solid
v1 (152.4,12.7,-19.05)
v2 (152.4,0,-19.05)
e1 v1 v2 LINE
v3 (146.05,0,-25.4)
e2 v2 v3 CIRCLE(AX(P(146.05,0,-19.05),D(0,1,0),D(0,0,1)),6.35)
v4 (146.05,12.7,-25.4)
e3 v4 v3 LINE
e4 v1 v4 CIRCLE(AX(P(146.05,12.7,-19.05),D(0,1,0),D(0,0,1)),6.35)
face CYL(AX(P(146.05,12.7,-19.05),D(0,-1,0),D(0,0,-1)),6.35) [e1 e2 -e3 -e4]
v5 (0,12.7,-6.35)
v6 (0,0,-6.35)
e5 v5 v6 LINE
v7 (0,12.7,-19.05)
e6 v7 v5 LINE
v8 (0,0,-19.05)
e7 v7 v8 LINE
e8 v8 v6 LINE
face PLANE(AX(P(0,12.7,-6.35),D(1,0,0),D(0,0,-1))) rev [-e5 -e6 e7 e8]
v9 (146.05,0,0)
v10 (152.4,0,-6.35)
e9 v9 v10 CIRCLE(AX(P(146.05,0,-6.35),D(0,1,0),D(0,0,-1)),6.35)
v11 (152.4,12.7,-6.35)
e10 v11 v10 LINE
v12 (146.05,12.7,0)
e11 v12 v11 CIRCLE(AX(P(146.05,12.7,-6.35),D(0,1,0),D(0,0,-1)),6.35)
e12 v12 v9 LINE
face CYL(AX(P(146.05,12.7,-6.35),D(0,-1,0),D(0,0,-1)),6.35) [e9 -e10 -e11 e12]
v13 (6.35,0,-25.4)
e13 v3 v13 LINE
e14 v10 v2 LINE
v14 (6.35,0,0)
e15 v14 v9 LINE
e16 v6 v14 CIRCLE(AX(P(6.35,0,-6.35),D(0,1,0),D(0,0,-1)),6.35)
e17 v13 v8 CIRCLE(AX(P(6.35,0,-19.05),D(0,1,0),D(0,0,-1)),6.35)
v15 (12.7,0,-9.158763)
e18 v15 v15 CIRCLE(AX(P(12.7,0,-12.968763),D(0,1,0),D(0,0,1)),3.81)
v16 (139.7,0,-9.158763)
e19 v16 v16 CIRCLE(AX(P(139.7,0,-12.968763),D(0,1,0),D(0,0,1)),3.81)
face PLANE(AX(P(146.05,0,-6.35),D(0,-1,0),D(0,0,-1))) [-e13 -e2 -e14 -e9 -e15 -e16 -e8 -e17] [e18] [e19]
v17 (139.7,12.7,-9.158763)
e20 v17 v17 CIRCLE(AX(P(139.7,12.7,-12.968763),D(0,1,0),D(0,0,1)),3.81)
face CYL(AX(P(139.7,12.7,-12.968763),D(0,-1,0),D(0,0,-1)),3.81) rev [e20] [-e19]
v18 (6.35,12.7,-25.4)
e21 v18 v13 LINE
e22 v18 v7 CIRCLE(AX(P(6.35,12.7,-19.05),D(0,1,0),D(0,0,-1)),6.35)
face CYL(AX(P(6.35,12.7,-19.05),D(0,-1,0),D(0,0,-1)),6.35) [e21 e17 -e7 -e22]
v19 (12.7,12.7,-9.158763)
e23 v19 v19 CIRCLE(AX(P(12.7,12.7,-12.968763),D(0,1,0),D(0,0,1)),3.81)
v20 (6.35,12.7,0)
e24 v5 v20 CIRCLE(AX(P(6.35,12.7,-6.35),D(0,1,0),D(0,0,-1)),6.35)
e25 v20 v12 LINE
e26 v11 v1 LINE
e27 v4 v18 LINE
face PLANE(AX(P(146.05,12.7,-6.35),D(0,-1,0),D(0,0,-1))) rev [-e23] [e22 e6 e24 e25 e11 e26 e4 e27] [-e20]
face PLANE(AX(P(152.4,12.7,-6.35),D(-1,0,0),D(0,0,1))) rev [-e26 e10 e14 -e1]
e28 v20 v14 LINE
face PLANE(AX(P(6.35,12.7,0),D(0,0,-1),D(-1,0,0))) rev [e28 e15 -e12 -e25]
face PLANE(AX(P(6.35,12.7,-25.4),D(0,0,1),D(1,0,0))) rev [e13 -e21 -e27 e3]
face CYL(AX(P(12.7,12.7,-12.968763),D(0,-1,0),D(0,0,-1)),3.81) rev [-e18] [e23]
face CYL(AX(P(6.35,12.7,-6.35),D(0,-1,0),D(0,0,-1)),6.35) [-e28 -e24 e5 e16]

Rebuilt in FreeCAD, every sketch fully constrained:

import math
import FreeCAD as App
import Part
import Sketcher
Q = App.Units.Quantity

doc = App.newDocument("Part")
body = doc.addObject("PartDesign::Body", "Body")

sketch1 = body.newObject("Sketcher::SketchObject", "Sketch")
sketch1.AttachmentSupport = (doc.getObject("XZ_Plane"), [""])
sketch1.MapMode = "FlatFace"
sketch1.addGeometry(Part.LineSegment(App.Vector(6.3, 0, 0), App.Vector(146.1, 0, 0)), False)
sketch1.addGeometry(Part.ArcOfCircle(Part.Circle(App.Vector(146.1, -6.3, 0), App.Vector(0, 0, 1), 6.3), math.radians(0), math.radians(90)), False)
sketch1.addGeometry(Part.LineSegment(App.Vector(152.4, -6.3, 0), App.Vector(152.4, -19.1, 0)), False)
sketch1.addGeometry(Part.ArcOfCircle(Part.Circle(App.Vector(146.1, -19.1, 0), App.Vector(0, 0, 1), 6.3), math.radians(-90), math.radians(0)), False)
sketch1.addGeometry(Part.LineSegment(App.Vector(146.1, -25.4, 0), App.Vector(6.3, -25.4, 0)), False)
sketch1.addGeometry(Part.ArcOfCircle(Part.Circle(App.Vector(6.3, -19.1, 0), App.Vector(0, 0, 1), 6.3), math.radians(180), math.radians(270)), False)
sketch1.addGeometry(Part.LineSegment(App.Vector(0, -19.1, 0), App.Vector(0, -6.3, 0)), False)
sketch1.addGeometry(Part.ArcOfCircle(Part.Circle(App.Vector(6.3, -6.3, 0), App.Vector(0, 0, 1), 6.3), math.radians(90), math.radians(180)), False)
sketch1.addGeometry(Part.Circle(App.Vector(12.7, -13, 0), App.Vector(0, 0, 1), 3.8), False)
sketch1.addGeometry(Part.Circle(App.Vector(139.7, -13, 0), App.Vector(0, 0, 1), 3.8), False)
sketch1.addConstraint(Sketcher.Constraint("Tangent", 0, 2, 1, 2))
sketch1.addConstraint(Sketcher.Constraint("Tangent", 1, 1, 2, 1))
sketch1.addConstraint(Sketcher.Constraint("Tangent", 2, 2, 3, 2))
sketch1.addConstraint(Sketcher.Constraint("Tangent", 3, 1, 4, 1))
sketch1.addConstraint(Sketcher.Constraint("Tangent", 4, 2, 5, 2))
sketch1.addConstraint(Sketcher.Constraint("Tangent", 5, 1, 6, 1))
sketch1.addConstraint(Sketcher.Constraint("Tangent", 6, 2, 7, 2))
sketch1.addConstraint(Sketcher.Constraint("Tangent", 7, 1, 0, 1))
sketch1.addConstraint(Sketcher.Constraint("Horizontal", 0))
sketch1.addConstraint(Sketcher.Constraint("Vertical", 2))
sketch1.addConstraint(Sketcher.Constraint("Horizontal", 4))
sketch1.addConstraint(Sketcher.Constraint("Vertical", 6))
sketch1.addConstraint(Sketcher.Constraint("Equal", 1, 3))
sketch1.addConstraint(Sketcher.Constraint("Equal", 3, 5))
sketch1.addConstraint(Sketcher.Constraint("Equal", 5, 7))
sketch1.addConstraint(Sketcher.Constraint("Equal", 8, 9))
sketch1.addConstraint(Sketcher.Constraint("PointOnObject", 0, 2, -1))
sketch1.addConstraint(Sketcher.Constraint("PointOnObject", 5, 1, -2))
sketch1.addConstraint(Sketcher.Constraint("Horizontal", 8, 3, 9, 3))
sketch1.addConstraint(Sketcher.Constraint("Diameter", 8, Q("0.3 in")))
sketch1.addConstraint(Sketcher.Constraint("Radius", 1, Q("0.25 in")))
sketch1.addConstraint(Sketcher.Constraint("DistanceX", 0, 1, 0, 2, Q("5.5 in")))
sketch1.addConstraint(Sketcher.Constraint("DistanceY", 2, 2, 2, 1, Q("0.5 in")))
sketch1.addConstraint(Sketcher.Constraint("DistanceX", 8, 3, 9, 3, Q("5 in")))
sketch1.addConstraint(Sketcher.Constraint("DistanceX", -1, 1, 8, 3, Q("0.5 in")))
sketch1.addConstraint(Sketcher.Constraint("DistanceY", 8, 3, -1, 1, Q("12.968763 mm")))
pad1 = body.newObject("PartDesign::Pad", "Pad")
pad1.Profile = sketch1
pad1.Length = Q("0.5 in")
pad1.Reversed = True

doc.recompute()
